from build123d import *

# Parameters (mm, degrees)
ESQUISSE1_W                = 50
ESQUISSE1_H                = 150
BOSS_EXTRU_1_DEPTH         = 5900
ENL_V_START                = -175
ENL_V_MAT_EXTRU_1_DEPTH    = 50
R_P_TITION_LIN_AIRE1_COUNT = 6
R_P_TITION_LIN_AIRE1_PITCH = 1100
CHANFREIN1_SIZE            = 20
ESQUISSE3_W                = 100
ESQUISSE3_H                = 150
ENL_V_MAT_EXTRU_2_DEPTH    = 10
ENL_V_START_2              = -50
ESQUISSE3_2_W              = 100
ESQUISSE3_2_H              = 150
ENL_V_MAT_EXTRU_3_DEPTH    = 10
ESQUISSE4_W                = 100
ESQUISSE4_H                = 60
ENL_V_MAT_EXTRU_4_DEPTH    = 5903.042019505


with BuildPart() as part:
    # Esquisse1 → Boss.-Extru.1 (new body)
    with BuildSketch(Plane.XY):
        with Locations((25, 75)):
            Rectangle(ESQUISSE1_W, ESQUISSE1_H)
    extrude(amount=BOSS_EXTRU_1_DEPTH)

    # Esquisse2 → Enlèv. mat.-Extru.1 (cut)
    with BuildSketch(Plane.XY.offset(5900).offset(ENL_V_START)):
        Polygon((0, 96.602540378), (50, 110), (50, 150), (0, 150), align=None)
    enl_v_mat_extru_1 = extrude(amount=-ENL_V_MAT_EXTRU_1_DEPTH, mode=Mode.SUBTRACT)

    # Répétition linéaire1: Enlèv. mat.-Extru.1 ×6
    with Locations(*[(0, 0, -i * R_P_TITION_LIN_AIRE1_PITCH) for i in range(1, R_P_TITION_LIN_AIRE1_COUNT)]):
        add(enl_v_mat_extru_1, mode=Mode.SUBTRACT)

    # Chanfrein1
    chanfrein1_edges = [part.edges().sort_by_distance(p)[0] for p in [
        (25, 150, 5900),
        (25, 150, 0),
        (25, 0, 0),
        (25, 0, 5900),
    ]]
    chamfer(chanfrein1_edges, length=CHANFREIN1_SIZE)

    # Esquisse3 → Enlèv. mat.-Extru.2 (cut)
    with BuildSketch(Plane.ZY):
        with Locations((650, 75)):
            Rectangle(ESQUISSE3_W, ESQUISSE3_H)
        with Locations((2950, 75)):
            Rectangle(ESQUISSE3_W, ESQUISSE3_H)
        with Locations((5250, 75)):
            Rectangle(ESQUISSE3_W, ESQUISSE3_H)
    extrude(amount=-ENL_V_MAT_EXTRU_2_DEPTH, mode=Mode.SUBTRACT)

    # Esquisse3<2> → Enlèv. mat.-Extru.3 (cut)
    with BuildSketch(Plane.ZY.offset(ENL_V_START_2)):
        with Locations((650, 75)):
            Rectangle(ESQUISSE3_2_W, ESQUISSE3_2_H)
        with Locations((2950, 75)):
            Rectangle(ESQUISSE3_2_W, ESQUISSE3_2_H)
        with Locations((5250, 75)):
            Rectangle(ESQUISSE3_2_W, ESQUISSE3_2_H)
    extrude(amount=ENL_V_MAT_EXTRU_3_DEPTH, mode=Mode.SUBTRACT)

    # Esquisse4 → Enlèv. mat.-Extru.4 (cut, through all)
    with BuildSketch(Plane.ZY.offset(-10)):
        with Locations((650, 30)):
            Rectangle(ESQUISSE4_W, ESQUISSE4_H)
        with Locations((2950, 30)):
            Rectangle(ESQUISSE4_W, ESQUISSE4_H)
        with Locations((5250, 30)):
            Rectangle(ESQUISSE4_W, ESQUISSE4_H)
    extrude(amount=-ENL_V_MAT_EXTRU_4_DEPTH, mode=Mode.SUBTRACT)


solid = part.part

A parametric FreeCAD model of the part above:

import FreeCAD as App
import Part
import Sketcher

V = App.Vector
Q = App.Units.Quantity


def edges_at(feature, points):
    """Names of the edges that pass closest to the given points."""
    edges = feature.Shape.Edges
    near = lambda p: min(range(len(edges)), key=lambda i: edges[i].distToShape(Part.Vertex(*p))[0])
    return sorted({f"Edge{near(p) + 1}" for p in points})

doc = App.newDocument("Part")
body = doc.addObject("PartDesign::Body", "Body")

# Sketch on XY plane
sketch1 = body.newObject("Sketcher::SketchObject", "Sketch")
sketch1.AttachmentSupport = (doc.getObject("XY_Plane"), [""])
sketch1.MapMode = "FlatFace"
sketch1.addGeometry([
    Part.LineSegment(V(0, 150, 0), V(0, 0, 0)),
    Part.LineSegment(V(0, 0, 0), V(50, 0, 0)),
    Part.LineSegment(V(50, 0, 0), V(50, 150, 0)),
    Part.LineSegment(V(50, 150, 0), V(0, 150, 0)),
], False)
sketch1.addConstraint([
    Sketcher.Constraint("Coincident", 0, 2, 1, 1),
    Sketcher.Constraint("Coincident", 1, 2, 2, 1),
    Sketcher.Constraint("Coincident", 2, 2, 3, 1),
    Sketcher.Constraint("Coincident", 3, 2, 0, 1),
    Sketcher.Constraint("Vertical", 0),
    Sketcher.Constraint("Horizontal", 1),
    Sketcher.Constraint("Vertical", 2),
    Sketcher.Constraint("Horizontal", 3),
    Sketcher.Constraint("Coincident", 0, 2, -1, 1),
    Sketcher.Constraint("DistanceX", 1, 1, 1, 2, Q("50 mm")),
    Sketcher.Constraint("DistanceY", 0, 2, 0, 1, Q("150 mm")),
])
pad1 = body.newObject("PartDesign::Pad", "Pad")
pad1.Profile = sketch1
pad1.Length = 5900

# Sketch on XY plane
sketch2 = body.newObject("Sketcher::SketchObject", "Sketch001")
sketch2.AttachmentSupport = (doc.getObject("XY_Plane"), [""])
sketch2.MapMode = "FlatFace"
sketch2.AttachmentOffset = App.Placement(V(0, 0, 5725), App.Rotation())
sketch2.addGeometry([
    Part.LineSegment(V(0, 97, 0), V(50, 110, 0)),
    Part.LineSegment(V(50, 110, 0), V(50, 150, 0)),
    Part.LineSegment(V(50, 150, 0), V(0, 150, 0)),
    Part.LineSegment(V(0, 150, 0), V(0, 97, 0)),
], False)
sketch2.addConstraint([
    Sketcher.Constraint("Coincident", 0, 2, 1, 1),
    Sketcher.Constraint("Coincident", 1, 2, 2, 1),
    Sketcher.Constraint("Coincident", 2, 2, 3, 1),
    Sketcher.Constraint("Coincident", 3, 2, 0, 1),
    Sketcher.Constraint("Vertical", 1),
    Sketcher.Constraint("Horizontal", 2),
    Sketcher.Constraint("Vertical", 3),
    Sketcher.Constraint("PointOnObject", 2, 2, -2),
    Sketcher.Constraint("DistanceX", 2, 2, 2, 1, Q("50 mm")),
    Sketcher.Constraint("DistanceY", 1, 1, 1, 2, Q("40 mm")),
    Sketcher.Constraint("Angle", 0, Q("15 deg")),
    Sketcher.Constraint("DistanceY", -1, 1, 0, 2, Q("110 mm")),
])
pocket1 = body.newObject("PartDesign::Pocket", "Pocket")
pocket1.Profile = sketch2
pocket1.Length = 50
doc.recompute()

linearpattern = body.newObject("PartDesign::LinearPattern", "LinearPattern")
linearpattern.Originals = [pocket1]
linearpattern.Direction = (doc.getObject("Z_Axis"), [""])
linearpattern.Mode = "offset"
linearpattern.Offset = 1100
linearpattern.Occurrences = 6
linearpattern.Reversed = True
body.Tip = linearpattern
doc.recompute()

chamfer = body.newObject("PartDesign::Chamfer", "Chamfer")
chamfer.Base = (linearpattern, edges_at(linearpattern, [
    (25, 150, 5900),
    (25, 150, 0),
    (25, 0, 0),
    (25, 0, 5900),
]))
chamfer.Size = 20

# Sketch on YZ plane
sketch3 = body.newObject("Sketcher::SketchObject", "Sketch002")
sketch3.AttachmentSupport = (doc.getObject("YZ_Plane"), [""])
sketch3.MapMode = "FlatFace"
sketch3.addGeometry([
    Part.LineSegment(V(150, 600, 0), V(0, 600, 0)),  # 0
    Part.LineSegment(V(0, 600, 0), V(0, 700, 0)),  # 1
    Part.LineSegment(V(0, 700, 0), V(150, 700, 0)),  # 2
    Part.LineSegment(V(150, 700, 0), V(150, 600, 0)),  # 3
    Part.LineSegment(V(150, 2900, 0), V(0, 2900, 0)),  # 4
    Part.LineSegment(V(0, 2900, 0), V(0, 3000, 0)),  # 5
    Part.LineSegment(V(0, 3000, 0), V(150, 3000, 0)),  # 6
    Part.LineSegment(V(150, 3000, 0), V(150, 2900, 0)),  # 7
    Part.LineSegment(V(150, 5200, 0), V(0, 5200, 0)),  # 8
    Part.LineSegment(V(0, 5200, 0), V(0, 5300, 0)),  # 9
    Part.LineSegment(V(0, 5300, 0), V(150, 5300, 0)),  # 10
    Part.LineSegment(V(150, 5300, 0), V(150, 5200, 0)),  # 11
], False)
sketch3.addConstraint([
    Sketcher.Constraint("Coincident", 0, 2, 1, 1),
    Sketcher.Constraint("Coincident", 1, 2, 2, 1),
    Sketcher.Constraint("Coincident", 2, 2, 3, 1),
    Sketcher.Constraint("Coincident", 3, 2, 0, 1),
    Sketcher.Constraint("Coincident", 4, 2, 5, 1),
    Sketcher.Constraint("Coincident", 5, 2, 6, 1),
    Sketcher.Constraint("Coincident", 6, 2, 7, 1),
    Sketcher.Constraint("Coincident", 7, 2, 4, 1),
    Sketcher.Constraint("Coincident", 8, 2, 9, 1),
    Sketcher.Constraint("Coincident", 9, 2, 10, 1),
    Sketcher.Constraint("Coincident", 10, 2, 11, 1),
    Sketcher.Constraint("Coincident", 11, 2, 8, 1),
    Sketcher.Constraint("Horizontal", 0),
    Sketcher.Constraint("Vertical", 1),
    Sketcher.Constraint("Horizontal", 2),
    Sketcher.Constraint("Vertical", 3),
    Sketcher.Constraint("Horizontal", 4),
    Sketcher.Constraint("Vertical", 5),
    Sketcher.Constraint("Horizontal", 6),
    Sketcher.Constraint("Vertical", 7),
    Sketcher.Constraint("Horizontal", 8),
    Sketcher.Constraint("Vertical", 9),
    Sketcher.Constraint("Horizontal", 10),
    Sketcher.Constraint("Vertical", 11),
    Sketcher.Constraint("PointOnObject", 0, 2, -2),
    Sketcher.Constraint("PointOnObject", 4, 2, -2),
    Sketcher.Constraint("PointOnObject", 8, 2, -2),
    Sketcher.Constraint("Vertical", 3, 2, 6, 2),
    Sketcher.Constraint("Vertical", 7, 2, 10, 2),
    Sketcher.Constraint("Equal", 3, 5),
    Sketcher.Constraint("Equal", 7, 9),
    Sketcher.Constraint("DistanceX", 0, 2, 0, 1, Q("150 mm")),
    Sketcher.Constraint("DistanceY", 1, 1, 1, 2, Q("100 mm")),
    Sketcher.Constraint("DistanceY", -1, 1, 0, 2, Q("600 mm")),
    Sketcher.Constraint("DistanceY", -1, 1, 4, 2, Q("2900 mm")),
    Sketcher.Constraint("DistanceY", -1, 1, 8, 2, Q("5200 mm")),
])
pocket2 = body.newObject("PartDesign::Pocket", "Pocket001")
pocket2.Profile = sketch3
pocket2.Length = 10
pocket2.Reversed = True

# Sketch on YZ plane
sketch4 = body.newObject("Sketcher::SketchObject", "Sketch003")
sketch4.AttachmentSupport = (doc.getObject("YZ_Plane"), [""])
sketch4.MapMode = "FlatFace"
sketch4.AttachmentOffset = App.Placement(V(0, 0, 50), App.Rotation())
sketch4.addGeometry([
    Part.LineSegment(V(150, 600, 0), V(0, 600, 0)),  # 0
    Part.LineSegment(V(0, 600, 0), V(0, 700, 0)),  # 1
    Part.LineSegment(V(0, 700, 0), V(150, 700, 0)),  # 2
    Part.LineSegment(V(150, 700, 0), V(150, 600, 0)),  # 3
    Part.LineSegment(V(150, 2900, 0), V(0, 2900, 0)),  # 4
    Part.LineSegment(V(0, 2900, 0), V(0, 3000, 0)),  # 5
    Part.LineSegment(V(0, 3000, 0), V(150, 3000, 0)),  # 6
    Part.LineSegment(V(150, 3000, 0), V(150, 2900, 0)),  # 7
    Part.LineSegment(V(150, 5200, 0), V(0, 5200, 0)),  # 8
    Part.LineSegment(V(0, 5200, 0), V(0, 5300, 0)),  # 9
    Part.LineSegment(V(0, 5300, 0), V(150, 5300, 0)),  # 10
    Part.LineSegment(V(150, 5300, 0), V(150, 5200, 0)),  # 11
], False)
sketch4.addConstraint([
    Sketcher.Constraint("Coincident", 0, 2, 1, 1),
    Sketcher.Constraint("Coincident", 1, 2, 2, 1),
    Sketcher.Constraint("Coincident", 2, 2, 3, 1),
    Sketcher.Constraint("Coincident", 3, 2, 0, 1),
    Sketcher.Constraint("Coincident", 4, 2, 5, 1),
    Sketcher.Constraint("Coincident", 5, 2, 6, 1),
    Sketcher.Constraint("Coincident", 6, 2, 7, 1),
    Sketcher.Constraint("Coincident", 7, 2, 4, 1),
    Sketcher.Constraint("Coincident", 8, 2, 9, 1),
    Sketcher.Constraint("Coincident", 9, 2, 10, 1),
    Sketcher.Constraint("Coincident", 10, 2, 11, 1),
    Sketcher.Constraint("Coincident", 11, 2, 8, 1),
    Sketcher.Constraint("Horizontal", 0),
    Sketcher.Constraint("Vertical", 1),
    Sketcher.Constraint("Horizontal", 2),
    Sketcher.Constraint("Vertical", 3),
    Sketcher.Constraint("Horizontal", 4),
    Sketcher.Constraint("Vertical", 5),
    Sketcher.Constraint("Horizontal", 6),
    Sketcher.Constraint("Vertical", 7),
    Sketcher.Constraint("Horizontal", 8),
    Sketcher.Constraint("Vertical", 9),
    Sketcher.Constraint("Horizontal", 10),
    Sketcher.Constraint("Vertical", 11),
    Sketcher.Constraint("PointOnObject", 0, 2, -2),
    Sketcher.Constraint("PointOnObject", 4, 2, -2),
    Sketcher.Constraint("PointOnObject", 8, 2, -2),
    Sketcher.Constraint("Vertical", 3, 2, 6, 2),
    Sketcher.Constraint("Vertical", 7, 2, 10, 2),
    Sketcher.Constraint("Equal", 3, 5),
    Sketcher.Constraint("Equal", 7, 9),
    Sketcher.Constraint("DistanceX", 0, 2, 0, 1, Q("150 mm")),
    Sketcher.Constraint("DistanceY", 1, 1, 1, 2, Q("100 mm")),
    Sketcher.Constraint("DistanceY", -1, 1, 0, 2, Q("600 mm")),
    Sketcher.Constraint("DistanceY", -1, 1, 4, 2, Q("2900 mm")),
    Sketcher.Constraint("DistanceY", -1, 1, 8, 2, Q("5200 mm")),
])
pocket3 = body.newObject("PartDesign::Pocket", "Pocket002")
pocket3.Profile = sketch4
pocket3.Length = 10

# Sketch on YZ plane
sketch5 = body.newObject("Sketcher::SketchObject", "Sketch004")
sketch5.AttachmentSupport = (doc.getObject("YZ_Plane"), [""])
sketch5.MapMode = "FlatFace"
sketch5.AttachmentOffset = App.Placement(V(0, 0, 10), App.Rotation())
sketch5.addGeometry([
    Part.LineSegment(V(60, 600, 0), V(0, 600, 0)),  # 0
    Part.LineSegment(V(0, 600, 0), V(0, 700, 0)),  # 1
    Part.LineSegment(V(0, 700, 0), V(60, 700, 0)),  # 2
    Part.LineSegment(V(60, 700, 0), V(60, 600, 0)),  # 3
    Part.LineSegment(V(60, 2900, 0), V(0, 2900, 0)),  # 4
    Part.LineSegment(V(0, 2900, 0), V(0, 3000, 0)),  # 5
    Part.LineSegment(V(0, 3000, 0), V(60, 3000, 0)),  # 6
    Part.LineSegment(V(60, 3000, 0), V(60, 2900, 0)),  # 7
    Part.LineSegment(V(60, 5200, 0), V(0, 5200, 0)),  # 8
    Part.LineSegment(V(0, 5200, 0), V(0, 5300, 0)),  # 9
    Part.LineSegment(V(0, 5300, 0), V(60, 5300, 0)),  # 10
    Part.LineSegment(V(60, 5300, 0), V(60, 5200, 0)),  # 11
], False)
sketch5.addConstraint([
    Sketcher.Constraint("Coincident", 0, 2, 1, 1),
    Sketcher.Constraint("Coincident", 1, 2, 2, 1),
    Sketcher.Constraint("Coincident", 2, 2, 3, 1),
    Sketcher.Constraint("Coincident", 3, 2, 0, 1),
    Sketcher.Constraint("Coincident", 4, 2, 5, 1),
    Sketcher.Constraint("Coincident", 5, 2, 6, 1),
    Sketcher.Constraint("Coincident", 6, 2, 7, 1),
    Sketcher.Constraint("Coincident", 7, 2, 4, 1),
    Sketcher.Constraint("Coincident", 8, 2, 9, 1),
    Sketcher.Constraint("Coincident", 9, 2, 10, 1),
    Sketcher.Constraint("Coincident", 10, 2, 11, 1),
    Sketcher.Constraint("Coincident", 11, 2, 8, 1),
    Sketcher.Constraint("Horizontal", 0),
    Sketcher.Constraint("Vertical", 1),
    Sketcher.Constraint("Horizontal", 2),
    Sketcher.Constraint("Vertical", 3),
    Sketcher.Constraint("Horizontal", 4),
    Sketcher.Constraint("Vertical", 5),
    Sketcher.Constraint("Horizontal", 6),
    Sketcher.Constraint("Vertical", 7),
    Sketcher.Constraint("Horizontal", 8),
    Sketcher.Constraint("Vertical", 9),
    Sketcher.Constraint("Horizontal", 10),
    Sketcher.Constraint("Vertical", 11),
    Sketcher.Constraint("PointOnObject", 0, 2, -2),
    Sketcher.Constraint("PointOnObject", 4, 2, -2),
    Sketcher.Constraint("PointOnObject", 8, 2, -2),
    Sketcher.Constraint("Vertical", 3, 2, 6, 2),
    Sketcher.Constraint("Vertical", 7, 2, 10, 2),
    Sketcher.Constraint("Equal", 3, 5),
    Sketcher.Constraint("Equal", 7, 9),
    Sketcher.Constraint("DistanceX", 0, 2, 0, 1, Q("60 mm")),
    Sketcher.Constraint("DistanceY", 1, 1, 1, 2, Q("100 mm")),
    Sketcher.Constraint("DistanceY", -1, 1, 0, 2, Q("600 mm")),
    Sketcher.Constraint("DistanceY", -1, 1, 4, 2, Q("2900 mm")),
    Sketcher.Constraint("DistanceY", -1, 1, 8, 2, Q("5200 mm")),
])
pocket4 = body.newObject("PartDesign::Pocket", "Pocket003")
pocket4.Profile = sketch5
pocket4.Type = "ThroughAll"
pocket4.Reversed = True

doc.recompute()
